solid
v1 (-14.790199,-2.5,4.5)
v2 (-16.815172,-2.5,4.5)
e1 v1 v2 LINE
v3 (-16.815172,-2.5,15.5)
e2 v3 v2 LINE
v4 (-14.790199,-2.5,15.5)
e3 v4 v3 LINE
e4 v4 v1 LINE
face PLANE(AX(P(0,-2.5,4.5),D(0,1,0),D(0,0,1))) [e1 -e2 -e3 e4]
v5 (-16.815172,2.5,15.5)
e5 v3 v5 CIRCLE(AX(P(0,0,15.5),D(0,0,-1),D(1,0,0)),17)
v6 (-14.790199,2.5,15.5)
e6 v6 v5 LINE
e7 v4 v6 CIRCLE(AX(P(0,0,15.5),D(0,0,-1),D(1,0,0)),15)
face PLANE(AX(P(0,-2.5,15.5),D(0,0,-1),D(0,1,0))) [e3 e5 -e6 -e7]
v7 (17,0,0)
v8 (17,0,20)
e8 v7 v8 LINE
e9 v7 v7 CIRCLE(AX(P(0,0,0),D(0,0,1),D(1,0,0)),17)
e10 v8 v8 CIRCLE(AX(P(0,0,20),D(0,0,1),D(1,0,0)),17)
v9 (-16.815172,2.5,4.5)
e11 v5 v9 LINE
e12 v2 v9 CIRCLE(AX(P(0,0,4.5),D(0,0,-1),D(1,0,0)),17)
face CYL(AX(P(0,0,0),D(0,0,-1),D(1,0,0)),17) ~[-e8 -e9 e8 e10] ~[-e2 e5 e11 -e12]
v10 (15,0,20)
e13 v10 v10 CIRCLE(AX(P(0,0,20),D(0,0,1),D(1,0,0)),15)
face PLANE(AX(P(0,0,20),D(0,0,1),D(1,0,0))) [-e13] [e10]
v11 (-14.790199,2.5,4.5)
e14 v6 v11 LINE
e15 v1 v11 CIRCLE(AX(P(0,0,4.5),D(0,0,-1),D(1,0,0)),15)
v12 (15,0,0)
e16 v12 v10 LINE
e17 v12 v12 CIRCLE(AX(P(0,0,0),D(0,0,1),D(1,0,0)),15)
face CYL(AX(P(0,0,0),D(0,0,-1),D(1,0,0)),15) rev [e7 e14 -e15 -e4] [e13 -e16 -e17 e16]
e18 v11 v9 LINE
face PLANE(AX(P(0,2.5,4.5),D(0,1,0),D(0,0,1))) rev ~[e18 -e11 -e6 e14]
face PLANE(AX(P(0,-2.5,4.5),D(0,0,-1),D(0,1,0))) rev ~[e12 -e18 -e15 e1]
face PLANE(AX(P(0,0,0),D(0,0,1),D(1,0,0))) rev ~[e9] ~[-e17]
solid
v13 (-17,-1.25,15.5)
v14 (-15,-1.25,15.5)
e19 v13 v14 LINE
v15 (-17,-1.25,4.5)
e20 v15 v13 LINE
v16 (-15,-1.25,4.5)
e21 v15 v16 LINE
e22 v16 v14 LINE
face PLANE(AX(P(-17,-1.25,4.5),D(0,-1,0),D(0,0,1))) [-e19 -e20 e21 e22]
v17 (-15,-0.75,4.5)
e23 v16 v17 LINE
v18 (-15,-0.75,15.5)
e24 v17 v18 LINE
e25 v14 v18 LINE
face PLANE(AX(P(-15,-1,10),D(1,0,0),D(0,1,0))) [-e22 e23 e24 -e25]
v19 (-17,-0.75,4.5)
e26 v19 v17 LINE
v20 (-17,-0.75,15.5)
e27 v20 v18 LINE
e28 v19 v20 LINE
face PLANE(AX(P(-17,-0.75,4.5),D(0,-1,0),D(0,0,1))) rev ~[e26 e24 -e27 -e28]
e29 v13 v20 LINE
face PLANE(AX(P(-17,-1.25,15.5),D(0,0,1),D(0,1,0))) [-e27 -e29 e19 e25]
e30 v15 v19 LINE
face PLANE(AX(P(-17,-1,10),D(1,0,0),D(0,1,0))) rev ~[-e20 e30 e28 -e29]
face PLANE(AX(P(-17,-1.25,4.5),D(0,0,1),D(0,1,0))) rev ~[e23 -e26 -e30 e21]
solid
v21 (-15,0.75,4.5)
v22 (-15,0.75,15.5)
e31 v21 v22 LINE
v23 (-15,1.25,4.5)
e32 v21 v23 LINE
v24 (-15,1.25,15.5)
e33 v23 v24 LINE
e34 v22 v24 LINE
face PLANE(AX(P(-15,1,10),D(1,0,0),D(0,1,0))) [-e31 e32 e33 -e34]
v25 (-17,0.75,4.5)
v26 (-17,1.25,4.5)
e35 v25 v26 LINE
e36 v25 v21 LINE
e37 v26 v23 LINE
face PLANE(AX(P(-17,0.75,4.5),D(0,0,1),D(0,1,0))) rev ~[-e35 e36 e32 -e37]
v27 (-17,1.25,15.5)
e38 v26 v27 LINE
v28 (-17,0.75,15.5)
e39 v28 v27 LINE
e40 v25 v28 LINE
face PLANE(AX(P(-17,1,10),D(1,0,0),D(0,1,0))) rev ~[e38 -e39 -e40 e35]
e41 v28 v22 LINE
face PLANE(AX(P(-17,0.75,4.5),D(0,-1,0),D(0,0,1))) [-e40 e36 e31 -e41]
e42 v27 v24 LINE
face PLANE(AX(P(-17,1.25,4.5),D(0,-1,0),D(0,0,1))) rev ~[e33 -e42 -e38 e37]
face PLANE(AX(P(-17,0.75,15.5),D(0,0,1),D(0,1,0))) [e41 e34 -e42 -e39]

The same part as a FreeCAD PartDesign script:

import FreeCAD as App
import Part
import Sketcher
from FreeCAD import Vector
Q = App.Units.Quantity

doc = App.newDocument("Part")
body = doc.addObject("PartDesign::Body", "Body")

# Sketch on XY plane
sketch1 = body.newObject("Sketcher::SketchObject", "Sketch")
sketch1.AttachmentSupport = (doc.getObject("XY_Plane"), [""])
sketch1.MapMode = "FlatFace"
sketch1.addGeometry([
    Part.Circle(Vector(0, 0, 0), Vector(0, 0, 1), 17),
    Part.Circle(Vector(0, 0, 0), Vector(0, 0, 1), 15),
], False)
sketch1.addConstraint([
    Sketcher.Constraint("Coincident", 0, 3, -1, 1),
    Sketcher.Constraint("Coincident", 1, 3, -1, 1),
    Sketcher.Constraint("Diameter", 0, Q("34 mm")),
    Sketcher.Constraint("Diameter", 1, Q("30 mm")),
])
pad1 = body.newObject("PartDesign::Pad", "Pad")
pad1.Profile = sketch1
pad1.Length = 20

# Sketch on YZ plane
sketch2 = body.newObject("Sketcher::SketchObject", "Sketch001")
sketch2.AttachmentSupport = (doc.getObject("YZ_Plane"), [""])
sketch2.MapMode = "FlatFace"
sketch2.addGeometry([
    Part.LineSegment(Vector(-2, 16, 0), Vector(-2, 4, 0)),
    Part.LineSegment(Vector(-2, 4, 0), Vector(2, 4, 0)),
    Part.LineSegment(Vector(2, 4, 0), Vector(2, 16, 0)),
    Part.LineSegment(Vector(2, 16, 0), Vector(-2, 16, 0)),
], False)
sketch2.addConstraint([
    Sketcher.Constraint("Coincident", 0, 2, 1, 1),
    Sketcher.Constraint("Coincident", 1, 2, 2, 1),
    Sketcher.Constraint("Coincident", 2, 2, 3, 1),
    Sketcher.Constraint("Coincident", 3, 2, 0, 1),
    Sketcher.Constraint("Vertical", 0),
    Sketcher.Constraint("Horizontal", 1),
    Sketcher.Constraint("Vertical", 2),
    Sketcher.Constraint("Horizontal", 3),
    Sketcher.Constraint("DistanceX", 1, 1, 1, 2, Q("5 mm")),
    Sketcher.Constraint("DistanceY", 0, 2, 0, 1, Q("11 mm")),
    Sketcher.Constraint("DistanceX", 0, 2, -1, 1, Q("2.5 mm")),
    Sketcher.Constraint("DistanceY", -1, 1, 0, 2, Q("4.5 mm")),
])
pocket1 = body.newObject("PartDesign::Pocket", "Pocket")
pocket1.Profile = sketch2
pocket1.Length = 25
body2 = doc.addObject("PartDesign::Body", "Body001")
body2.AllowCompound = True

# Sketch on YZ plane
sketch3 = body2.newObject("Sketcher::SketchObject", "Sketch002")
sketch3.AttachmentSupport = (doc.getObject("YZ_Plane001"), [""])
sketch3.MapMode = "FlatFace"
sketch3.AttachmentOffset = App.Placement(Vector(0, 0, -17), App.Rotation())
sketch3.addGeometry([
    Part.LineSegment(Vector(-1.2, 15.5, 0), Vector(-1.2, 4.5, 0)),  # 0
    Part.LineSegment(Vector(-1.2, 4.5, 0), Vector(-0.8, 4.5, 0)),  # 1
    Part.LineSegment(Vector(-0.8, 4.5, 0), Vector(-0.8, 15.5, 0)),  # 2
    Part.LineSegment(Vector(-0.8, 15.5, 0), Vector(-1.2, 15.5, 0)),  # 3
    Part.LineSegment(Vector(0.8, 15.5, 0), Vector(0.8, 4.5, 0)),  # 4
    Part.LineSegment(Vector(0.8, 4.5, 0), Vector(1.2, 4.5, 0)),  # 5
    Part.LineSegment(Vector(1.2, 4.5, 0), Vector(1.2, 15.5, 0)),  # 6
    Part.LineSegment(Vector(1.2, 15.5, 0), Vector(0.8, 15.5, 0)),  # 7
], False)
sketch3.addConstraint([
    Sketcher.Constraint("Coincident", 0, 2, 1, 1),
    Sketcher.Constraint("Coincident", 1, 2, 2, 1),
    Sketcher.Constraint("Coincident", 2, 2, 3, 1),
    Sketcher.Constraint("Coincident", 3, 2, 0, 1),
    Sketcher.Constraint("Coincident", 4, 2, 5, 1),
    Sketcher.Constraint("Coincident", 5, 2, 6, 1),
    Sketcher.Constraint("Coincident", 6, 2, 7, 1),
    Sketcher.Constraint("Coincident", 7, 2, 4, 1),
    Sketcher.Constraint("Vertical", 0),
    Sketcher.Constraint("Horizontal", 1),
    Sketcher.Constraint("Vertical", 2),
    Sketcher.Constraint("Horizontal", 3),
    Sketcher.Constraint("Vertical", 4),
    Sketcher.Constraint("Horizontal", 5),
    Sketcher.Constraint("Vertical", 6),
    Sketcher.Constraint("Horizontal", 7),
    Sketcher.Constraint("Symmetric", 1, 2, 4, 2, -2),
    Sketcher.Constraint("Symmetric", 3, 2, 6, 2, -2),
    Sketcher.Constraint("DistanceY", 0, 2, 0, 1, Q("11 mm")),
    Sketcher.Constraint("DistanceX", 1, 1, 1, 2, Q("0.5 mm")),
    Sketcher.Constraint("DistanceX", 0, 2, 4, 2, Q("2 mm")),
    Sketcher.Constraint("DistanceY", -1, 1, 0, 2, Q("4.5 mm")),
])
pad2 = body2.newObject("PartDesign::Pad", "Pad001")
pad2.Profile = sketch3
pad2.Length = 2

doc.recompute()
